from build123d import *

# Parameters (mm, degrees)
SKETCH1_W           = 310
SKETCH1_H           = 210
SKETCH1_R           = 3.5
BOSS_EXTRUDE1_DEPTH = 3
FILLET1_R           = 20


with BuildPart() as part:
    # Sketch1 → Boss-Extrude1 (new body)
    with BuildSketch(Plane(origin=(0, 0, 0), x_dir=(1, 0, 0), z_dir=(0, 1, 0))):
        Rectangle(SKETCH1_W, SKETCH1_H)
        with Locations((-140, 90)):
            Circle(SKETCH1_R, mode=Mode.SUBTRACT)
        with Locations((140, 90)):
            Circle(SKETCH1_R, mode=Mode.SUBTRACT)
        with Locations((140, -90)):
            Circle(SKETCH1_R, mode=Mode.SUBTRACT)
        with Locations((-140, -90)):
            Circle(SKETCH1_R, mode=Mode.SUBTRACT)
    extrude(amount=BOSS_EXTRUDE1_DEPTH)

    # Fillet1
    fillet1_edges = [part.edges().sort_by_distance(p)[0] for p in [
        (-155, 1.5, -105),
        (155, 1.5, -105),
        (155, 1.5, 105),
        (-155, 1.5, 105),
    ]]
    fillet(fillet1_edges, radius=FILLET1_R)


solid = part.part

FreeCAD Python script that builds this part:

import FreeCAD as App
import Part
import Sketcher
from FreeCAD import Vector
Q = App.Units.Quantity


def edges_at(feature, points):
    """Names of the edges that pass closest to the given points."""
    edges = feature.Shape.Edges
    near = lambda p: min(range(len(edges)), key=lambda i: edges[i].distToShape(Part.Vertex(*p))[0])
    return sorted({f"Edge{near(p) + 1}" for p in points})

doc = App.newDocument("Part")
body = doc.addObject("PartDesign::Body", "Body")

# Sketch on XZ plane
sketch1 = body.newObject("Sketcher::SketchObject", "Sketch")
sketch1.AttachmentSupport = (doc.getObject("XZ_Plane"), [""])
sketch1.MapMode = "FlatFace"
sketch1.addGeometry([
    Part.LineSegment(Vector(-155, -105, 0), Vector(-155, 105, 0)),  # 0
    Part.LineSegment(Vector(-155, 105, 0), Vector(155, 105, 0)),  # 1
    Part.LineSegment(Vector(155, 105, 0), Vector(155, -105, 0)),  # 2
    Part.LineSegment(Vector(155, -105, 0), Vector(-155, -105, 0)),  # 3
    Part.Circle(Vector(-140, 90, 0), Vector(0, 0, 1), 3.5),  # 4
    Part.Circle(Vector(140, 90, 0), Vector(0, 0, 1), 3.5),  # 5
    Part.Circle(Vector(-140, -90, 0), Vector(0, 0, 1), 3.5),  # 6
    Part.Circle(Vector(140, -90, 0), Vector(0, 0, 1), 3.5),  # 7
], False)
sketch1.addConstraint([
    Sketcher.Constraint("Coincident", 0, 2, 1, 1),
    Sketcher.Constraint("Coincident", 1, 2, 2, 1),
    Sketcher.Constraint("Coincident", 2, 2, 3, 1),
    Sketcher.Constraint("Coincident", 3, 2, 0, 1),
    Sketcher.Constraint("Vertical", 0),
    Sketcher.Constraint("Horizontal", 1),
    Sketcher.Constraint("Vertical", 2),
    Sketcher.Constraint("Horizontal", 3),
    Sketcher.Constraint("Equal", 4, 5),
    Sketcher.Constraint("Equal", 5, 6),
    Sketcher.Constraint("Equal", 6, 7),
    Sketcher.Constraint("Symmetric", 5, 3, 6, 3, -1, 1),
    Sketcher.Constraint("Symmetric", 4, 3, 7, 3, -1, 1),
    Sketcher.Constraint("Symmetric", 0, 2, 2, 2, -1, 1),
    Sketcher.Constraint("Symmetric", 4, 3, 5, 3, -2),
    Sketcher.Constraint("Diameter", 4, Q("7 mm")),
    Sketcher.Constraint("DistanceX", 1, 1, 1, 2, Q("310 mm")),
    Sketcher.Constraint("DistanceY", 0, 1, 0, 2, Q("210 mm")),
    Sketcher.Constraint("DistanceX", 4, 3, -1, 1, Q("140 mm")),
    Sketcher.Constraint("DistanceY", -1, 1, 4, 3, Q("90 mm")),
])
pad1 = body.newObject("PartDesign::Pad", "Pad")
pad1.Profile = sketch1
pad1.Length = 3
pad1.Reversed = True
doc.recompute()

fillet = body.newObject("PartDesign::Fillet", "Fillet")
fillet.Base = (pad1, edges_at(pad1, [
    (-155, 1.5, -105),
    (155, 1.5, -105),
    (155, 1.5, 105),
    (-155, 1.5, 105),
]))
fillet.Radius = 20

doc.recompute()
